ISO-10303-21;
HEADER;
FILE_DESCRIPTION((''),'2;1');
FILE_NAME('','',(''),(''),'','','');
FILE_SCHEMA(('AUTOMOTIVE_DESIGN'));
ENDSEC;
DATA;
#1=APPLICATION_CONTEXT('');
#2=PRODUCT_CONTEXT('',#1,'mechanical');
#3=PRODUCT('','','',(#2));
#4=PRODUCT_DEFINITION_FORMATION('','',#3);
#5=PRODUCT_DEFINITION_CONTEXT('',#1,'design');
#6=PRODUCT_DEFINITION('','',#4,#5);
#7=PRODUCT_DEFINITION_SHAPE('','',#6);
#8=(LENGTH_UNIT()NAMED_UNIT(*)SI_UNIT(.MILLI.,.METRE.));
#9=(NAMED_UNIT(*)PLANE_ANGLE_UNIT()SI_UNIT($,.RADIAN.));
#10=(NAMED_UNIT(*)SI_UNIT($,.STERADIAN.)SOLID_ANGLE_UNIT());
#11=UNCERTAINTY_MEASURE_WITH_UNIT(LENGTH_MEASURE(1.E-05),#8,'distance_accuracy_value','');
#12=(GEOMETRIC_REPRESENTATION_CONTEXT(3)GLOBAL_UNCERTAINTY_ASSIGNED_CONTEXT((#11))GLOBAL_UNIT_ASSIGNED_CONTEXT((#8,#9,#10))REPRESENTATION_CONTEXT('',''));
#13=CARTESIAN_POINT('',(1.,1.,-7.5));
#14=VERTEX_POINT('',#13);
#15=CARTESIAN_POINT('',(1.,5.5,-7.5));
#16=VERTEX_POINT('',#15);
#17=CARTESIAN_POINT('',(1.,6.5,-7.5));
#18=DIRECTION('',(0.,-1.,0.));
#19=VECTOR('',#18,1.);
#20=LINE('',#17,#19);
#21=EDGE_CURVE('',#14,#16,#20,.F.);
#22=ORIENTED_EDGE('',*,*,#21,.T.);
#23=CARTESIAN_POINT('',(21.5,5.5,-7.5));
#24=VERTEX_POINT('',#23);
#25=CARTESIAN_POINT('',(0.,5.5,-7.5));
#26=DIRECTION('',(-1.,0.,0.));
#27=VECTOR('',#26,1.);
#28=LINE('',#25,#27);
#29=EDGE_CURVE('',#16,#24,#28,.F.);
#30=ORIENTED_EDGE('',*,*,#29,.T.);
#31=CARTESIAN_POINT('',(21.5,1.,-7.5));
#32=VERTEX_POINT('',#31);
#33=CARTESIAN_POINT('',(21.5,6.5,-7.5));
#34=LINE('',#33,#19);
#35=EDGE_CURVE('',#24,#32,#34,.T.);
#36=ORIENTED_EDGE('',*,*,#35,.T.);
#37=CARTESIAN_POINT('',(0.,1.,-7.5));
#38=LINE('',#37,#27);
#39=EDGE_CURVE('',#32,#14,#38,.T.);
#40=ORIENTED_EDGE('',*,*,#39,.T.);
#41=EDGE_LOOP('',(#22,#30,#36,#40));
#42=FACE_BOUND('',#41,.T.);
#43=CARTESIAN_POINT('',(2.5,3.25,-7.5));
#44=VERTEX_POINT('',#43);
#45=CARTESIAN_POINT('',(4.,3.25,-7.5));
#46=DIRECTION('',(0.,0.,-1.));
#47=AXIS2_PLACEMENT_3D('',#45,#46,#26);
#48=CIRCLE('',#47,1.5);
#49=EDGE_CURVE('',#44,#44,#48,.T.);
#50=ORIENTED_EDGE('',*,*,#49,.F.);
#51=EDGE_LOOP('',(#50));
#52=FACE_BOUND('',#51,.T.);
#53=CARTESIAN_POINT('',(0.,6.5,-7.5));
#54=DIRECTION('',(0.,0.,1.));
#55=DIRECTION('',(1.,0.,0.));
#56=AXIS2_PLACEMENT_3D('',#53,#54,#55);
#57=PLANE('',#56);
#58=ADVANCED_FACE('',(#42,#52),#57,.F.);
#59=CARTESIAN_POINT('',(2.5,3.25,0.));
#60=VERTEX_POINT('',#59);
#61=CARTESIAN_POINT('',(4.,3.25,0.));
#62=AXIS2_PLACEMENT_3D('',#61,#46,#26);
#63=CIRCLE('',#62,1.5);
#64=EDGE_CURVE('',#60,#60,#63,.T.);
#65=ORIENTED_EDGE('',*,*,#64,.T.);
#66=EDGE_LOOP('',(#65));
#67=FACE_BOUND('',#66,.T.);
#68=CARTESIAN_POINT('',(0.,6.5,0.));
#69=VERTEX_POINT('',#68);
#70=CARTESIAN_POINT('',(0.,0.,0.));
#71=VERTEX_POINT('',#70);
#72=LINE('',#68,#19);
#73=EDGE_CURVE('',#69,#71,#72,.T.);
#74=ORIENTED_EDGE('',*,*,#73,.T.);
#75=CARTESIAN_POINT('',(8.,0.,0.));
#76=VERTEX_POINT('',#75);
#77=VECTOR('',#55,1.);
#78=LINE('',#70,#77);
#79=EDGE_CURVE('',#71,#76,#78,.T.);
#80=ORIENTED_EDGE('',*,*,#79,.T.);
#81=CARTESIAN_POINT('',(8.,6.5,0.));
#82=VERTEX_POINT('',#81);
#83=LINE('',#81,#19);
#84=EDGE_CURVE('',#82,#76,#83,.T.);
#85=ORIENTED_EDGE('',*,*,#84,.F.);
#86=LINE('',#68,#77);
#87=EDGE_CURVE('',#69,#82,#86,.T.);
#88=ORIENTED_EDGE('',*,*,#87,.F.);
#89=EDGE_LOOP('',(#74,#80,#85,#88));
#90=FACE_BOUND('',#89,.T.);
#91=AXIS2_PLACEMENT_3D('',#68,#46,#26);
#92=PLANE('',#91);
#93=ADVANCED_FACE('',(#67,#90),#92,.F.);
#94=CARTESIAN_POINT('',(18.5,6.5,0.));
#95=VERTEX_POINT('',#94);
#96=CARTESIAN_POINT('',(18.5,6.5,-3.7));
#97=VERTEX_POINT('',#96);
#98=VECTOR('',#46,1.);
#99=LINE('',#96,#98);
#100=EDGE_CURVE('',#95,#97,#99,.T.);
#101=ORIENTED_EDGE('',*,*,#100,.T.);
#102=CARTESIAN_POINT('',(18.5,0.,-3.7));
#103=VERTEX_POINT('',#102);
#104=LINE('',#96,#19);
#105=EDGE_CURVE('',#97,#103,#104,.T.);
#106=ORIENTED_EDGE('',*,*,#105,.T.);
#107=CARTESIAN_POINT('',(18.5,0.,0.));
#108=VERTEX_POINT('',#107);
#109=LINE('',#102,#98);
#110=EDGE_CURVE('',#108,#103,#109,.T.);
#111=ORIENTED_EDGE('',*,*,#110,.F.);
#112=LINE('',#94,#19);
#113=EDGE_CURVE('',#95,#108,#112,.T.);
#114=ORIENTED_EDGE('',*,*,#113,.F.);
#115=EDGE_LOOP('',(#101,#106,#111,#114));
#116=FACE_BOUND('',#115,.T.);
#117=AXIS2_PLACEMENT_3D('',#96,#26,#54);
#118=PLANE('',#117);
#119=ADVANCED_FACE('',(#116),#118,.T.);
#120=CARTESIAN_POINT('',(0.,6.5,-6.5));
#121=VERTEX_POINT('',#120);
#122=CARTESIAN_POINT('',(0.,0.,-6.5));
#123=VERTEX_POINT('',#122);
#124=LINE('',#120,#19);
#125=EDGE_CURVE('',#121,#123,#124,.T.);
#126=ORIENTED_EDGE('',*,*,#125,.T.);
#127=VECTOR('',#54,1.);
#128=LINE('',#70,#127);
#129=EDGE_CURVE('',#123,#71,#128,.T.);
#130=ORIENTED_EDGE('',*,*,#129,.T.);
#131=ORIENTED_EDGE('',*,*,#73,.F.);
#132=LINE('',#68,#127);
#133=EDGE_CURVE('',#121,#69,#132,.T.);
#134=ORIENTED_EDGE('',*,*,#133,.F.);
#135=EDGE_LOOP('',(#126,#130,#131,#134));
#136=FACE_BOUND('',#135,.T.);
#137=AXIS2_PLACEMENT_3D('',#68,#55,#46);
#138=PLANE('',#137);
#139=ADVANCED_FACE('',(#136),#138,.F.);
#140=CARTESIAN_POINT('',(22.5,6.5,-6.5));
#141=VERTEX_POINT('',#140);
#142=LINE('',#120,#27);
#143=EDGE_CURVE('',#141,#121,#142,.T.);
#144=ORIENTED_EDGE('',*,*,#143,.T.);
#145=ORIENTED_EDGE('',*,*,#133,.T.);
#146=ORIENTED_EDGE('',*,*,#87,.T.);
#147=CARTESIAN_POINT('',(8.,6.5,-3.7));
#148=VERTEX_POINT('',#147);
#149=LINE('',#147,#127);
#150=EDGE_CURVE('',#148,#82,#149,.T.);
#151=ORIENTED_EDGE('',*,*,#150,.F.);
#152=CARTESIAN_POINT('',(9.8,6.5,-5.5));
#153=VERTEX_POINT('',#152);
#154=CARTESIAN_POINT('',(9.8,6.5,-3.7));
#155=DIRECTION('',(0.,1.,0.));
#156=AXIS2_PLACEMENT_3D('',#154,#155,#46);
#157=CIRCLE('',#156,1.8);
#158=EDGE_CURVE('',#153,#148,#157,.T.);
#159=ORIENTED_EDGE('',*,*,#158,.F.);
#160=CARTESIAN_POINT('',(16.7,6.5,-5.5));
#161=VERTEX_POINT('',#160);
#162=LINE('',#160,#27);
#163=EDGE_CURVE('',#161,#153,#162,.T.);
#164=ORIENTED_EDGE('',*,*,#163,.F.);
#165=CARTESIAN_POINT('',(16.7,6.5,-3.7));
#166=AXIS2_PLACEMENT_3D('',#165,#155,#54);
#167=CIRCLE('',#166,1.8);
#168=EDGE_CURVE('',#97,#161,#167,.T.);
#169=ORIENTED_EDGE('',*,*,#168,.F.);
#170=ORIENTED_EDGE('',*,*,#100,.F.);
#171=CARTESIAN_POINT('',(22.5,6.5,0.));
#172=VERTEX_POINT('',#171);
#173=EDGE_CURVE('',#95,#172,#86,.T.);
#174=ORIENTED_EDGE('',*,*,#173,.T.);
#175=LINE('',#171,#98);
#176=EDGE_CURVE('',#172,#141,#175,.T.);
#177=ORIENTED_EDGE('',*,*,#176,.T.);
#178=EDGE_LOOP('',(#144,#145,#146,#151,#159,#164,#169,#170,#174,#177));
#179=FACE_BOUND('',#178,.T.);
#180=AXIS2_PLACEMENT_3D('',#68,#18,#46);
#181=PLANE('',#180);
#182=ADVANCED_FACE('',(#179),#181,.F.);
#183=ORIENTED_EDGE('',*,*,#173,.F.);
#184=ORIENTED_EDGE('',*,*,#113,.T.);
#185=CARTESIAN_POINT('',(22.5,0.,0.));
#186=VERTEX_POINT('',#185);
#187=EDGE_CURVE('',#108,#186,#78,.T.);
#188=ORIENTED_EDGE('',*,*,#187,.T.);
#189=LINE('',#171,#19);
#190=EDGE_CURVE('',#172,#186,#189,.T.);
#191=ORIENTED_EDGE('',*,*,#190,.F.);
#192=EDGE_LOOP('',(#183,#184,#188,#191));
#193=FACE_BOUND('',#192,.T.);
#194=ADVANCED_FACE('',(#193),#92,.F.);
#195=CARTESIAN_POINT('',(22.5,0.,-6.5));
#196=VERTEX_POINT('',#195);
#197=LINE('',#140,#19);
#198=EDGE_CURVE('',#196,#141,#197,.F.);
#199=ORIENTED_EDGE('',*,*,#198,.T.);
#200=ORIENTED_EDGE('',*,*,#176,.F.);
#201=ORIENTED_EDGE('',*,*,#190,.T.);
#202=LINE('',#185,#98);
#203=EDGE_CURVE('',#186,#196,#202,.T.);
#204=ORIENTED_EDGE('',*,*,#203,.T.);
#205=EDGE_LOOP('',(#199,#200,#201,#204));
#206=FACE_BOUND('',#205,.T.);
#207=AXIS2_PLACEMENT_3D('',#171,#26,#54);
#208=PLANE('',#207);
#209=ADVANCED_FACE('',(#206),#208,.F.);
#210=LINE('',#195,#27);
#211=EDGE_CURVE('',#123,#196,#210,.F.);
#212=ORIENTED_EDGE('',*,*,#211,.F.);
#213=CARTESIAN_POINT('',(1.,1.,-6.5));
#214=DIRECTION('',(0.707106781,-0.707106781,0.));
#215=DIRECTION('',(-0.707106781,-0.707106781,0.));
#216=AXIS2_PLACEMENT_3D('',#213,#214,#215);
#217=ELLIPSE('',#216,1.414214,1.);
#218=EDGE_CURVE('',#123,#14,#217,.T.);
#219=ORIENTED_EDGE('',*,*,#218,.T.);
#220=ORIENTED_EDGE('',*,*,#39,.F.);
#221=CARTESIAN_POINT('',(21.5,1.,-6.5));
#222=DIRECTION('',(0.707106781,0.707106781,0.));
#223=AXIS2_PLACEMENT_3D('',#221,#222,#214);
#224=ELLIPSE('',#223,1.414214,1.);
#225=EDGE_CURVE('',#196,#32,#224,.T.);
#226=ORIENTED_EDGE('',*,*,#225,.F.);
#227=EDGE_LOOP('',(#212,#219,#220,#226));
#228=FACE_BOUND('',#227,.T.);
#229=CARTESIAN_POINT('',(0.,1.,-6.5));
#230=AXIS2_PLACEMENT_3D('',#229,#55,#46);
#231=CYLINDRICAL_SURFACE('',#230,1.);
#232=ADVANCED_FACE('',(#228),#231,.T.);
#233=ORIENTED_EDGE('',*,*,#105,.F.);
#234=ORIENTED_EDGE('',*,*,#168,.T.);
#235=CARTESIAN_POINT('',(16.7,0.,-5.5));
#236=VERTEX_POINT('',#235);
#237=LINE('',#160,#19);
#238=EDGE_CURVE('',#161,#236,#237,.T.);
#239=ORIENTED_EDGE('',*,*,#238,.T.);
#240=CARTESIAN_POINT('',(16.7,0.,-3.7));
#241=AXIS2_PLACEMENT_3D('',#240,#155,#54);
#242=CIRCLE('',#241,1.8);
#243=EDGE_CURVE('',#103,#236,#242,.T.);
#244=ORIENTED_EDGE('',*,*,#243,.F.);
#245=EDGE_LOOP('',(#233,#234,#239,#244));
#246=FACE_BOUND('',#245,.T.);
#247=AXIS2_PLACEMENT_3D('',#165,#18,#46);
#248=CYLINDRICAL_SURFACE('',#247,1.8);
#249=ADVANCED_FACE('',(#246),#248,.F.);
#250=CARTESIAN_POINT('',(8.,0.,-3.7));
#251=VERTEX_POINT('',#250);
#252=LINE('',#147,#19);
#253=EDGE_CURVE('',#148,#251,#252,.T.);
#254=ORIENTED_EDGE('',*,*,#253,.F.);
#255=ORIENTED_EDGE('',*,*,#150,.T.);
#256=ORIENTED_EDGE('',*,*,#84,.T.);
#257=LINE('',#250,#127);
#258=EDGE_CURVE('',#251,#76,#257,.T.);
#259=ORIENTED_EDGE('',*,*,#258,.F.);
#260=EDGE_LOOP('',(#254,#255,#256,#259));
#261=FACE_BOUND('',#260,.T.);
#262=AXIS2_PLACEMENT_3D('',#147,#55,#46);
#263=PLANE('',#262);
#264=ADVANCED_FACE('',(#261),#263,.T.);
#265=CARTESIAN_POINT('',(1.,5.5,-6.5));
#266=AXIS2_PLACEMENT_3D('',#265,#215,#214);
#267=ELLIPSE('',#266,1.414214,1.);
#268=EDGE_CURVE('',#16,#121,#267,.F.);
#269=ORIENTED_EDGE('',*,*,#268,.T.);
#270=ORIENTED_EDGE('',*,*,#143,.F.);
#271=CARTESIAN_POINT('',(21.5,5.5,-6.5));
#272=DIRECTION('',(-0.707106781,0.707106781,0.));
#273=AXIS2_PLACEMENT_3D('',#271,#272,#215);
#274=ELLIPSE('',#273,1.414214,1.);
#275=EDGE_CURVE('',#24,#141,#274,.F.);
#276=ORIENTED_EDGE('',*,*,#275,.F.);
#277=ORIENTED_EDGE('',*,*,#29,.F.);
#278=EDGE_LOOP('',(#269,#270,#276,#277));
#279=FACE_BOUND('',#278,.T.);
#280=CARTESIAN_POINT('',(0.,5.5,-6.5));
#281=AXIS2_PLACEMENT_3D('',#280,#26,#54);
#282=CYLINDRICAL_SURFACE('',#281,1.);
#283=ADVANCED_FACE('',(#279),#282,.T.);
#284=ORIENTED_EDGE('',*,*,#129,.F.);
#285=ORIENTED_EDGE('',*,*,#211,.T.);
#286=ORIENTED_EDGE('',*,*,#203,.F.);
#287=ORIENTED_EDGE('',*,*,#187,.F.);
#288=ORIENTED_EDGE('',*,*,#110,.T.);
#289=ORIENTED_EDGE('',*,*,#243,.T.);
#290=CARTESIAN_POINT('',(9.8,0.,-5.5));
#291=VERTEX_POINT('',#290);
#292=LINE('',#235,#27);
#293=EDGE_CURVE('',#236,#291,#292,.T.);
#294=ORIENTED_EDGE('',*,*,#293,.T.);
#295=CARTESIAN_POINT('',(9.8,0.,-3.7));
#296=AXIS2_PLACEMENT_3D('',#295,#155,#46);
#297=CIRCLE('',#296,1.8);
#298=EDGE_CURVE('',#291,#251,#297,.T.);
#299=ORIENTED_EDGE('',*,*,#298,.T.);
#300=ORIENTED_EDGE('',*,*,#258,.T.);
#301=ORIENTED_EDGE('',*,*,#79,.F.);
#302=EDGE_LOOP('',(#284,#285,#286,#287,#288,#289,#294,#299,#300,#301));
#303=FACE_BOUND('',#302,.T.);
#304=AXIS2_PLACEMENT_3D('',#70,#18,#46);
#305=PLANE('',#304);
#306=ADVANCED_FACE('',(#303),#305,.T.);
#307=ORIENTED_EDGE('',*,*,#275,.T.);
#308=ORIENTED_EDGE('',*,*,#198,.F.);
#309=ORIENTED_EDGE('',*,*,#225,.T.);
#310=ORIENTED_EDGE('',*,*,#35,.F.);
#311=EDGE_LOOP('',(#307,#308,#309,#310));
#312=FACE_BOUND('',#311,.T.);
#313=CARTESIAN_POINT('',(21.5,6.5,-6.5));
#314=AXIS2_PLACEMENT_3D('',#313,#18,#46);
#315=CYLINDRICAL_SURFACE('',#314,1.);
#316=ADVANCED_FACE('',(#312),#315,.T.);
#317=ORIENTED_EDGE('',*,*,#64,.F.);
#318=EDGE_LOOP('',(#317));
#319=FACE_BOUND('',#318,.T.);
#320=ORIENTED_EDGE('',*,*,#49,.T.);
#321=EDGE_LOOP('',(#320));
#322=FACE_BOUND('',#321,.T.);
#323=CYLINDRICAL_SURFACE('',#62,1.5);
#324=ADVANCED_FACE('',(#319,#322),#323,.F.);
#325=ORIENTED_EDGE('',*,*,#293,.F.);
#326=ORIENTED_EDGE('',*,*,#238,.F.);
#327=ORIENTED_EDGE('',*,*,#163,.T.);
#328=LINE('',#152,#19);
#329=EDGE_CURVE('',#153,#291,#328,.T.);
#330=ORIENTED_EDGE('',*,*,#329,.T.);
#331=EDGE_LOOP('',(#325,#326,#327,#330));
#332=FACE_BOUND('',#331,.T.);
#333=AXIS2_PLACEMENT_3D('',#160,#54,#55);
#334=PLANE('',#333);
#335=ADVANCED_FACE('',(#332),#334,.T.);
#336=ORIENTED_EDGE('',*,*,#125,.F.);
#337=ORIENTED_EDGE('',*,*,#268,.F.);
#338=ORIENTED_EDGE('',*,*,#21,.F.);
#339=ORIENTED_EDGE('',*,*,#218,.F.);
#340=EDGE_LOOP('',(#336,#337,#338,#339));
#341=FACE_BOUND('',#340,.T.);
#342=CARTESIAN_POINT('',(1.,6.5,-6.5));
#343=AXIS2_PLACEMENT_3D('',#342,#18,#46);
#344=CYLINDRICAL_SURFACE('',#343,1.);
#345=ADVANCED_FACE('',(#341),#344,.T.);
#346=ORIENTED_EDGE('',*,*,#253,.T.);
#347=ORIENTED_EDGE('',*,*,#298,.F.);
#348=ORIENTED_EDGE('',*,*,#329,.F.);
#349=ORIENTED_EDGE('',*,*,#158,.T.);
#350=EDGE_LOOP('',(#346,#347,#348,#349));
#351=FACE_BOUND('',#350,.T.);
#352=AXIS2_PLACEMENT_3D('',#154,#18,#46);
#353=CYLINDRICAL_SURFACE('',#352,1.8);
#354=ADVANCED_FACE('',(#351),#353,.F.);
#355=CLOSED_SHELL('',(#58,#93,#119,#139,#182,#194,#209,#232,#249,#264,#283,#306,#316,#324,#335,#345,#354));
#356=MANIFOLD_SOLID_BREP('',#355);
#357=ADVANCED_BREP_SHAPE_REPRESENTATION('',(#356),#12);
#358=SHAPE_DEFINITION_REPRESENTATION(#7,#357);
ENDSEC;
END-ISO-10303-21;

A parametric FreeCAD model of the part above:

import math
import FreeCAD as App
import Part
import Sketcher

V = App.Vector
Q = App.Units.Quantity


def edges_at(feature, points):
    """Names of the edges that pass closest to the given points."""
    edges = feature.Shape.Edges
    near = lambda p: min(range(len(edges)), key=lambda i: edges[i].distToShape(Part.Vertex(*p))[0])
    return sorted({f"Edge{near(p) + 1}" for p in points})

doc = App.newDocument("Part")
body = doc.addObject("PartDesign::Body", "Body")

sketch1 = body.newObject("Sketcher::SketchObject", "Sketch")
sketch1.AttachmentSupport = (doc.getObject("XZ_Plane"), [""])
sketch1.MapMode = "FlatFace"
sketch1.addGeometry([
    Part.LineSegment(V(0, -7.5, 0), V(0, 0, 0)),
    Part.LineSegment(V(0, 0, 0), V(22.5, 0, 0)),
    Part.LineSegment(V(22.5, 0, 0), V(22.5, -7.5, 0)),
    Part.LineSegment(V(22.5, -7.5, 0), V(0, -7.5, 0)),
], False)
sketch1.addConstraint([
    Sketcher.Constraint("Coincident", 0, 2, 1, 1),
    Sketcher.Constraint("Coincident", 1, 2, 2, 1),
    Sketcher.Constraint("Coincident", 2, 2, 3, 1),
    Sketcher.Constraint("Coincident", 3, 2, 0, 1),
    Sketcher.Constraint("Vertical", 0),
    Sketcher.Constraint("Horizontal", 1),
    Sketcher.Constraint("Vertical", 2),
    Sketcher.Constraint("Horizontal", 3),
    Sketcher.Constraint("Coincident", 0, 2, -1, 1),
    Sketcher.Constraint("DistanceX", 1, 1, 1, 2, Q("22.5 mm")),
    Sketcher.Constraint("DistanceY", 0, 1, 0, 2, Q("7.5 mm")),
])
pad1 = body.newObject("PartDesign::Pad", "Pad")
pad1.Profile = sketch1
pad1.Length = 6.5
pad1.Reversed = True

sketch2 = body.newObject("Sketcher::SketchObject", "Sketch001")
sketch2.AttachmentSupport = (doc.getObject("XY_Plane"), [""])
sketch2.MapMode = "FlatFace"
sketch2.AttachmentOffset = App.Placement(V(0, 0, -7.5), App.Rotation())
sketch2.addGeometry(Part.Circle(V(4, 3.25, 0), V(0, 0, 1), 1.5), False)
sketch2.addConstraint([
    Sketcher.Constraint("Diameter", 0, Q("3 mm")),
    Sketcher.Constraint("DistanceX", -1, 1, 0, 3, Q("4 mm")),
    Sketcher.Constraint("DistanceY", -1, 1, 0, 3, Q("3.25 mm")),
])
pocket1 = body.newObject("PartDesign::Pocket", "Pocket")
pocket1.Profile = sketch2
pocket1.Type = "ThroughAll"
pocket1.Reversed = True

sketch3 = body.newObject("Sketcher::SketchObject", "Sketch002")
sketch3.AttachmentSupport = (doc.getObject("XZ_Plane"), [""])
sketch3.MapMode = "FlatFace"
sketch3.addGeometry([
    Part.LineSegment(V(16.7, -5.5, 0), V(9.8, -5.5, 0)),
    Part.ArcOfCircle(Part.Circle(V(9.8, -3.7, 0), V(0, 0, 1), 1.8), math.radians(180), math.radians(270)),
    Part.LineSegment(V(8, -3.7, 0), V(8, 0, 0)),
    Part.LineSegment(V(8, 0, 0), V(18.5, 0, 0)),
    Part.LineSegment(V(18.5, 0, 0), V(18.5, -3.7, 0)),
    Part.ArcOfCircle(Part.Circle(V(16.7, -3.7, 0), V(0, 0, 1), 1.8), math.radians(-90), math.radians(0)),
], False)
sketch3.addConstraint([
    Sketcher.Constraint("Tangent", 0, 2, 1, 2),
    Sketcher.Constraint("Tangent", 1, 1, 2, 1),
    Sketcher.Constraint("Coincident", 2, 2, 3, 1),
    Sketcher.Constraint("Coincident", 3, 2, 4, 1),
    Sketcher.Constraint("Tangent", 4, 2, 5, 2),
    Sketcher.Constraint("Tangent", 5, 1, 0, 1),
    Sketcher.Constraint("Horizontal", 0),
    Sketcher.Constraint("Vertical", 2),
    Sketcher.Constraint("Horizontal", 3),
    Sketcher.Constraint("Vertical", 4),
    Sketcher.Constraint("Equal", 1, 5),
    Sketcher.Constraint("PointOnObject", 2, 2, -1),
    Sketcher.Constraint("Radius", 1, Q("1.8 mm")),
    Sketcher.Constraint("DistanceX", 0, 2, 0, 1, Q("6.9 mm")),
    Sketcher.Constraint("DistanceY", 2, 1, 2, 2, Q("3.7 mm")),
    Sketcher.Constraint("DistanceX", -1, 1, 1, 1, Q("8 mm")),
])
pocket2 = body.newObject("PartDesign::Pocket", "Pocket001")
pocket2.Profile = sketch3
pocket2.Type = "ThroughAll"
doc.recompute()

fillet = body.newObject("PartDesign::Fillet", "Fillet")
fillet.Base = (pocket2, edges_at(pocket2, [
    (11.25, 6.5, -7.5),
    (11.25, 0, -7.5),
    (0, 3.25, -7.5),
    (22.5, 3.25, -7.5),
]))
fillet.Radius = 1

doc.recompute()
